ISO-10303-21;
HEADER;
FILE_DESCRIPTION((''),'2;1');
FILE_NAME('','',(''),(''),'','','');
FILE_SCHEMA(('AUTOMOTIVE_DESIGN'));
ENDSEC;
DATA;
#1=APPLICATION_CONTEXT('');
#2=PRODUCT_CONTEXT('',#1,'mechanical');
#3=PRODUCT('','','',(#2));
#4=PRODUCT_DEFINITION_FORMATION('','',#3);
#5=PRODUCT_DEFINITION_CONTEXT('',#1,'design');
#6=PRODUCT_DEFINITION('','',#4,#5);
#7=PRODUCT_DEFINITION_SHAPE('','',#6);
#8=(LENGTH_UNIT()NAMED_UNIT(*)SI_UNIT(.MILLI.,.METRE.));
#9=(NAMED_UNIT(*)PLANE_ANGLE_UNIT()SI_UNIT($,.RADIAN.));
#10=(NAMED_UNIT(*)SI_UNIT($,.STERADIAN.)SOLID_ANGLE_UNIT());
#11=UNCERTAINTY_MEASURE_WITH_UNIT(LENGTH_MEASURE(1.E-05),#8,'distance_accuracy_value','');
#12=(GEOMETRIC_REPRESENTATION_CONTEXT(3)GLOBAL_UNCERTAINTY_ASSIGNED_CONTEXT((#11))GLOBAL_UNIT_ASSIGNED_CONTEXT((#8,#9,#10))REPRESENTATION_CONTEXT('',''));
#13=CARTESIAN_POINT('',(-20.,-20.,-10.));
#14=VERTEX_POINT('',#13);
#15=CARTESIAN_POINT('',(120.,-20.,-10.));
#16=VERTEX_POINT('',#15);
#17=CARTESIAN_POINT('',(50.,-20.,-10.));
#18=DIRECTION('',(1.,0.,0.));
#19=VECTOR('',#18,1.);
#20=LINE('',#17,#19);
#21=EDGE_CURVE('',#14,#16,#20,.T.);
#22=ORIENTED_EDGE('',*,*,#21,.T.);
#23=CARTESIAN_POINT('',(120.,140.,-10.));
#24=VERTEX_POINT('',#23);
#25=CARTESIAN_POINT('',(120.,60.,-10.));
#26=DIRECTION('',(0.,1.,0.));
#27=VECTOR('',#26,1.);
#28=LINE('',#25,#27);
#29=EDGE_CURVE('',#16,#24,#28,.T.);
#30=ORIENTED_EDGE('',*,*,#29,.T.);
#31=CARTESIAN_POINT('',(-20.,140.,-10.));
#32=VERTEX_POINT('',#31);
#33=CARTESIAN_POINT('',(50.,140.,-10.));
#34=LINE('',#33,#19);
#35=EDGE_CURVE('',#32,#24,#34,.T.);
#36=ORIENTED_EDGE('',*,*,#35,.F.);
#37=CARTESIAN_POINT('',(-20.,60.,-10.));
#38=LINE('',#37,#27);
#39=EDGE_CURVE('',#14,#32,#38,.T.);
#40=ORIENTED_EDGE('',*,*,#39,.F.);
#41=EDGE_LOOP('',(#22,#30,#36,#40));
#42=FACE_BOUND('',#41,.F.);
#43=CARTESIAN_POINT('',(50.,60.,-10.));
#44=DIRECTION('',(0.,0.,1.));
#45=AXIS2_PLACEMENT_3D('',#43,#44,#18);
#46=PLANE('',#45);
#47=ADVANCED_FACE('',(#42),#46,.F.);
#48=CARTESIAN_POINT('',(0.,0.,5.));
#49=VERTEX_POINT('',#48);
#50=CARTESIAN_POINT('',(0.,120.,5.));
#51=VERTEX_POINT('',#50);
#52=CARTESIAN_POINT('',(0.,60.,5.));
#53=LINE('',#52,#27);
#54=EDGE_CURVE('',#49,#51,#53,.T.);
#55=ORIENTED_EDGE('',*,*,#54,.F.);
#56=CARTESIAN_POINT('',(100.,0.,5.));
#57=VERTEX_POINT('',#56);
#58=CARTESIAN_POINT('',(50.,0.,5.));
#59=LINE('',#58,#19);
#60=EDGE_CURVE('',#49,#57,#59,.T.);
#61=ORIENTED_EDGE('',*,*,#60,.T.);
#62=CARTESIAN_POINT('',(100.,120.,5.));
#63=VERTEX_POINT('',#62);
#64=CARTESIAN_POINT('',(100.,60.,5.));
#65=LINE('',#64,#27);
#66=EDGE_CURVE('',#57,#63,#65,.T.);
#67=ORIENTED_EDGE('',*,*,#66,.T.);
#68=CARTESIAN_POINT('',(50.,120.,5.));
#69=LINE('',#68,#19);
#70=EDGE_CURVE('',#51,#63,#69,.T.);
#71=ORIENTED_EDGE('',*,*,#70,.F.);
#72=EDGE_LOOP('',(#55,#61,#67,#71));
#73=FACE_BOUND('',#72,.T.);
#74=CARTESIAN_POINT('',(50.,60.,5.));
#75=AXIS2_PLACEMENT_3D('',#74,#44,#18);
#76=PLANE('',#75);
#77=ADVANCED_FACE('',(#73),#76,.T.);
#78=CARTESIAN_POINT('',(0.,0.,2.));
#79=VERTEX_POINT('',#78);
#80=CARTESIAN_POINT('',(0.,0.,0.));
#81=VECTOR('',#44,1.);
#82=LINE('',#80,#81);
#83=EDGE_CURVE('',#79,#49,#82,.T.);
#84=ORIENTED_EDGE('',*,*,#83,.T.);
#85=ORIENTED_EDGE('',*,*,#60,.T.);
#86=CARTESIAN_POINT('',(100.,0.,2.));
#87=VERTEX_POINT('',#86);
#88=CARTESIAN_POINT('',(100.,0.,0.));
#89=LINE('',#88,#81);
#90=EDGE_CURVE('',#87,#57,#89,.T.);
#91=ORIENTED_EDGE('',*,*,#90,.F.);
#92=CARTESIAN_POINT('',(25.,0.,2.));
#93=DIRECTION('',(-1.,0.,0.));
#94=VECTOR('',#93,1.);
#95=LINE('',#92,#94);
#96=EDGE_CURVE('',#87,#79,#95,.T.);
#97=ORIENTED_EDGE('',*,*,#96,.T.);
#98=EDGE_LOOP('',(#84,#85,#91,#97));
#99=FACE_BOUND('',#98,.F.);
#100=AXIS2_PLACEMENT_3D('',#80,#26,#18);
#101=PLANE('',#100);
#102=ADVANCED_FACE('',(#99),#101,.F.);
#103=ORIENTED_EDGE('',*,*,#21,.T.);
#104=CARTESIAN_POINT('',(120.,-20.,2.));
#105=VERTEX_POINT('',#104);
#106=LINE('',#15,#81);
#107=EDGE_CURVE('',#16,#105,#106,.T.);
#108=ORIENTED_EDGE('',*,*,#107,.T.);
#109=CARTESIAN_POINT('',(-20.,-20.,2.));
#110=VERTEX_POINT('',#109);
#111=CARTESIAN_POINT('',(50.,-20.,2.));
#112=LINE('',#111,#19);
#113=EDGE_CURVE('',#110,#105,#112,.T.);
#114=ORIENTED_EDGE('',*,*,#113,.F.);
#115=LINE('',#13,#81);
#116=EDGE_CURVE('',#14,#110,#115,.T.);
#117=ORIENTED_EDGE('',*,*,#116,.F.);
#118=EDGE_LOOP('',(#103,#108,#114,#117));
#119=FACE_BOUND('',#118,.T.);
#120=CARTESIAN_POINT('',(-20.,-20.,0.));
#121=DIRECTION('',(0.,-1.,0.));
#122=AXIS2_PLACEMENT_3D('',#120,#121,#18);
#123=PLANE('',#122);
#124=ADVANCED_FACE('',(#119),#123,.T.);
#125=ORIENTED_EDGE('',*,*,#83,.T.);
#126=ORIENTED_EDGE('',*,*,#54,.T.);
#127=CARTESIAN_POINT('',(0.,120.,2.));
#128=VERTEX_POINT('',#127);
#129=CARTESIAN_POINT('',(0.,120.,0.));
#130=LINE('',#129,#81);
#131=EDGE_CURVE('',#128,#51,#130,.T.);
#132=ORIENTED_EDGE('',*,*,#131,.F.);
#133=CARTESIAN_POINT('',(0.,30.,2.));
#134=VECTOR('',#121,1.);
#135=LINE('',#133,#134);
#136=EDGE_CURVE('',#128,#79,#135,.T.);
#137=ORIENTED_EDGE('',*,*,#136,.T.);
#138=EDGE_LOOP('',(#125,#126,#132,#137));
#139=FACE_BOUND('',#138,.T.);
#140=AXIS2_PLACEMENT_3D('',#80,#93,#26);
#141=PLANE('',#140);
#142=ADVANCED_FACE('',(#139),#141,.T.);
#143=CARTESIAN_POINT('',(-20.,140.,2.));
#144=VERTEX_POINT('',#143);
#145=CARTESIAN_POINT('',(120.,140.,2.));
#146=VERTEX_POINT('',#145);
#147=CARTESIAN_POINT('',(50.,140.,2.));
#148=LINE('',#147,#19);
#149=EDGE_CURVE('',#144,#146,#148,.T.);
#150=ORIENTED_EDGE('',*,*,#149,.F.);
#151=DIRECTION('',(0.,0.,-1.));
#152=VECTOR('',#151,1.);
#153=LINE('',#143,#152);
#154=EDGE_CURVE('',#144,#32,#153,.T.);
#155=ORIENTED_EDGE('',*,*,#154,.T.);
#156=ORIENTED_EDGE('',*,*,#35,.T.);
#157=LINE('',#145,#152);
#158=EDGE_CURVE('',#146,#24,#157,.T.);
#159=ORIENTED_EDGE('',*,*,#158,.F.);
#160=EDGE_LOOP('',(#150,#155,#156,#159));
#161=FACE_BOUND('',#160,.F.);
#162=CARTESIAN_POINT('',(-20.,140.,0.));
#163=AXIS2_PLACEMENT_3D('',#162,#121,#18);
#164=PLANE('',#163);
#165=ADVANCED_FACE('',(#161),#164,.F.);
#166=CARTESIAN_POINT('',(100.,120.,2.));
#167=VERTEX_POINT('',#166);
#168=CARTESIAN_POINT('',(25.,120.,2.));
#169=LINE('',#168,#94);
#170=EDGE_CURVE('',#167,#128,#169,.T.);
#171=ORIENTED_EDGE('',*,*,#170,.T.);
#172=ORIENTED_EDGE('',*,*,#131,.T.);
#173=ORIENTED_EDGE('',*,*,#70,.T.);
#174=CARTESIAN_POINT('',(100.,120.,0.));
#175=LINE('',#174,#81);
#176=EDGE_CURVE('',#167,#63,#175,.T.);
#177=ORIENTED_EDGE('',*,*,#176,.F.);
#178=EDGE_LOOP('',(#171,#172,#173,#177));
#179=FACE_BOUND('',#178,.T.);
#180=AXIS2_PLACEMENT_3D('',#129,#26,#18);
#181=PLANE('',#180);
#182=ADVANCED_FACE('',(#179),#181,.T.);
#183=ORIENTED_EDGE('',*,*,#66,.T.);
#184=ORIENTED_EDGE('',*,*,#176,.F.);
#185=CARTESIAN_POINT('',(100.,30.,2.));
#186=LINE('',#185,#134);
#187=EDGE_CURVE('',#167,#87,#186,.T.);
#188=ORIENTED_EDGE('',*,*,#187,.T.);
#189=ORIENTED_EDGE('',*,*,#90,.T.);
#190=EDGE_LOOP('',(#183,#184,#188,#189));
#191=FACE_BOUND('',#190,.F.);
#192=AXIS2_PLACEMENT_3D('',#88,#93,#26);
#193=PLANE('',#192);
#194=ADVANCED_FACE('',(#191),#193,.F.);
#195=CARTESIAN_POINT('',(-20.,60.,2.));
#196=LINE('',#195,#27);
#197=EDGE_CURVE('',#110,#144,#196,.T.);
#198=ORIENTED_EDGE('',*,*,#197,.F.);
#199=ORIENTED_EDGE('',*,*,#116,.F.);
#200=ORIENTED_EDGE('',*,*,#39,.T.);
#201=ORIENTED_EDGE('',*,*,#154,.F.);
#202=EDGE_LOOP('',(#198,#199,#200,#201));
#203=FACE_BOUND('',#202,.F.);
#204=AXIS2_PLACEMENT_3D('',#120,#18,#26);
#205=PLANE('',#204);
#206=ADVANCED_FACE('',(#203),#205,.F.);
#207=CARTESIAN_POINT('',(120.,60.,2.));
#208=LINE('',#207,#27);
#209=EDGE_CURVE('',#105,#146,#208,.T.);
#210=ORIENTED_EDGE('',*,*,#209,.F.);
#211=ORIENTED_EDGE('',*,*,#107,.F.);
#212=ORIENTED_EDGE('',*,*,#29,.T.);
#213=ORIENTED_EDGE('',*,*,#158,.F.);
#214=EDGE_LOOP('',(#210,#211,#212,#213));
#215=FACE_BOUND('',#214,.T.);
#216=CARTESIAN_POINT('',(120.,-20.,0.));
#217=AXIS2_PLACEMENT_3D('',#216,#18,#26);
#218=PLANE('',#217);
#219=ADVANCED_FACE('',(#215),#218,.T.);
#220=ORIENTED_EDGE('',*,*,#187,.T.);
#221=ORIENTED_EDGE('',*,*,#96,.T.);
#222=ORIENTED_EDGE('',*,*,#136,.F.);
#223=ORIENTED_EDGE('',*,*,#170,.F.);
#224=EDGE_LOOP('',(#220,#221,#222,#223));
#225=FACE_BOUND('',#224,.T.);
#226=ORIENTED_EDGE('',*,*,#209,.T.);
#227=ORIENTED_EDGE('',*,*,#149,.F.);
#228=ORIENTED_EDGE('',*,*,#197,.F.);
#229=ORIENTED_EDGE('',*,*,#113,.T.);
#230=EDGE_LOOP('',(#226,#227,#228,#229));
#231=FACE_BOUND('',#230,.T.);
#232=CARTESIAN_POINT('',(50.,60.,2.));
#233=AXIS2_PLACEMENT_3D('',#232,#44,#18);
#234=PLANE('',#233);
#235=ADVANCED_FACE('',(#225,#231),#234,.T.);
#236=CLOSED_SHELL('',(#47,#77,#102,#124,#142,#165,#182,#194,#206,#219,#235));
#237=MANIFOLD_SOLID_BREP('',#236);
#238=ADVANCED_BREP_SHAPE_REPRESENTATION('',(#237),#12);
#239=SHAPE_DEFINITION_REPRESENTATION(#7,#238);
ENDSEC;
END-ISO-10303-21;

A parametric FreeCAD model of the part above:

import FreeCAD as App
import Part
import Sketcher
from FreeCAD import Vector

doc = App.newDocument("Part")
body = doc.addObject("PartDesign::Body", "Body")

# Sketch on XY plane
sketch1 = body.newObject("Sketcher::SketchObject", "Sketch")
sketch1.AttachmentSupport = (doc.getObject("XY_Plane"), [""])
sketch1.MapMode = "FlatFace"
sketch1.addGeometry([
    Part.LineSegment(Vector(-20, 140, 0), Vector(-20, -20, 0)),
    Part.LineSegment(Vector(-20, -20, 0), Vector(120, -20, 0)),
    Part.LineSegment(Vector(120, -20, 0), Vector(120, 140, 0)),
    Part.LineSegment(Vector(120, 140, 0), Vector(-20, 140, 0)),
], False)
sketch1.addConstraint([
    Sketcher.Constraint("Coincident", 0, 2, 1, 1),
    Sketcher.Constraint("Coincident", 1, 2, 2, 1),
    Sketcher.Constraint("Coincident", 2, 2, 3, 1),
    Sketcher.Constraint("Coincident", 3, 2, 0, 1),
    Sketcher.Constraint("Vertical", 0),
    Sketcher.Constraint("Horizontal", 1),
    Sketcher.Constraint("Vertical", 2),
    Sketcher.Constraint("Horizontal", 3),
    Sketcher.Constraint("DistanceX", 1, 1, 1, 2, 140.0),
    Sketcher.Constraint("DistanceY", 0, 2, 0, 1, 160.0),
    Sketcher.Constraint("DistanceX", 0, 2, -1, 1, 20.0),
    Sketcher.Constraint("DistanceY", 0, 2, -1, 1, 20.0),
])
pad1 = body.newObject("PartDesign::Pad", "Pad")
pad1.Profile = sketch1
pad1.Length = 2

# Sketch on XY plane
sketch2 = body.newObject("Sketcher::SketchObject", "Sketch001")
sketch2.AttachmentSupport = (doc.getObject("XY_Plane"), [""])
sketch2.MapMode = "FlatFace"
sketch2.addGeometry([
    Part.LineSegment(Vector(0, 120, 0), Vector(0, 0, 0)),
    Part.LineSegment(Vector(0, 0, 0), Vector(100, 0, 0)),
    Part.LineSegment(Vector(100, 0, 0), Vector(100, 120, 0)),
    Part.LineSegment(Vector(100, 120, 0), Vector(0, 120, 0)),
], False)
sketch2.addConstraint([
    Sketcher.Constraint("Coincident", 0, 2, 1, 1),
    Sketcher.Constraint("Coincident", 1, 2, 2, 1),
    Sketcher.Constraint("Coincident", 2, 2, 3, 1),
    Sketcher.Constraint("Coincident", 3, 2, 0, 1),
    Sketcher.Constraint("Vertical", 0),
    Sketcher.Constraint("Horizontal", 1),
    Sketcher.Constraint("Vertical", 2),
    Sketcher.Constraint("Horizontal", 3),
    Sketcher.Constraint("Coincident", 0, 2, -1, 1),
    Sketcher.Constraint("DistanceX", 1, 1, 1, 2, 100.0),
    Sketcher.Constraint("DistanceY", 0, 2, 0, 1, 120.0),
])
pad2 = body.newObject("PartDesign::Pad", "Pad001")
pad2.Profile = sketch2
pad2.Length = 5

# Sketch on XY plane
sketch3 = body.newObject("Sketcher::SketchObject", "Sketch002")
sketch3.AttachmentSupport = (doc.getObject("XY_Plane"), [""])
sketch3.MapMode = "FlatFace"
sketch3.addGeometry([
    Part.LineSegment(Vector(-20, 140, 0), Vector(-20, -20, 0)),
    Part.LineSegment(Vector(-20, -20, 0), Vector(120, -20, 0)),
    Part.LineSegment(Vector(120, -20, 0), Vector(120, 140, 0)),
    Part.LineSegment(Vector(120, 140, 0), Vector(-20, 140, 0)),
], False)
sketch3.addConstraint([
    Sketcher.Constraint("Coincident", 0, 2, 1, 1),
    Sketcher.Constraint("Coincident", 1, 2, 2, 1),
    Sketcher.Constraint("Coincident", 2, 2, 3, 1),
    Sketcher.Constraint("Coincident", 3, 2, 0, 1),
    Sketcher.Constraint("Vertical", 0),
    Sketcher.Constraint("Horizontal", 1),
    Sketcher.Constraint("Vertical", 2),
    Sketcher.Constraint("Horizontal", 3),
    Sketcher.Constraint("DistanceX", 1, 1, 1, 2, 140.0),
    Sketcher.Constraint("DistanceY", 0, 2, 0, 1, 160.0),
    Sketcher.Constraint("DistanceX", 0, 2, -1, 1, 20.0),
    Sketcher.Constraint("DistanceY", 0, 2, -1, 1, 20.0),
])
pad3 = body.newObject("PartDesign::Pad", "Pad002")
pad3.Profile = sketch3
pad3.Length = 10
pad3.Reversed = True

doc.recompute()
